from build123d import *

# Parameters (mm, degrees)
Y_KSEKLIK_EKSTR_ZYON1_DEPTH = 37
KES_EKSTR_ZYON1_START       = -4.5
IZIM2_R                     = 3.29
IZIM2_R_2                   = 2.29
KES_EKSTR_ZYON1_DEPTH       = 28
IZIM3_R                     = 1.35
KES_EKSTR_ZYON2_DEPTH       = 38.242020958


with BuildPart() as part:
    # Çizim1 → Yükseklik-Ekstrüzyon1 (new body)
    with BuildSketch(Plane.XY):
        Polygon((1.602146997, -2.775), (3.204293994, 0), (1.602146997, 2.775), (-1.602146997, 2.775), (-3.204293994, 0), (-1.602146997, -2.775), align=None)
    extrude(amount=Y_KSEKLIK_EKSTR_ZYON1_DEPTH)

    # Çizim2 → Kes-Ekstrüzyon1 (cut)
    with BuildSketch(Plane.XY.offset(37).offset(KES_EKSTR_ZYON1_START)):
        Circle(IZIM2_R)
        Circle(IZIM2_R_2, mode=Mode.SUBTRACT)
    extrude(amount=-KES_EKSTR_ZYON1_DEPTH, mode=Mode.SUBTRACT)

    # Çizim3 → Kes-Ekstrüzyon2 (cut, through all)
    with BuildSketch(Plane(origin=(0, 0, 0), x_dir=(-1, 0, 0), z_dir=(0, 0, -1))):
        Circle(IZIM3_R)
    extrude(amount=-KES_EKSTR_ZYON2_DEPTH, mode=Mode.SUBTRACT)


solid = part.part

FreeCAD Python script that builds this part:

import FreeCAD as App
import Part
import Sketcher

V = App.Vector
Q = App.Units.Quantity

doc = App.newDocument("Part")
body = doc.addObject("PartDesign::Body", "Body")

# Sketch on XY plane
sketch1 = body.newObject("Sketcher::SketchObject", "Sketch")
sketch1.AttachmentSupport = (doc.getObject("XY_Plane"), [""])
sketch1.MapMode = "FlatFace"
sketch1.addGeometry([
    Part.LineSegment(V(1.6, -2.8, 0), V(3.2, 0, 0)),  # 0
    Part.LineSegment(V(3.2, 0, 0), V(1.6, 2.8, 0)),  # 1
    Part.LineSegment(V(1.6, 2.8, 0), V(-1.6, 2.8, 0)),  # 2
    Part.LineSegment(V(-1.6, 2.8, 0), V(-3.2, 0, 0)),  # 3
    Part.LineSegment(V(-3.2, 0, 0), V(-1.6, -2.8, 0)),  # 4
    Part.LineSegment(V(-1.6, -2.8, 0), V(1.6, -2.8, 0)),  # 5
], False)
sketch1.addConstraint([
    Sketcher.Constraint("Coincident", 0, 2, 1, 1),
    Sketcher.Constraint("Coincident", 1, 2, 2, 1),
    Sketcher.Constraint("Coincident", 2, 2, 3, 1),
    Sketcher.Constraint("Coincident", 3, 2, 4, 1),
    Sketcher.Constraint("Coincident", 4, 2, 5, 1),
    Sketcher.Constraint("Coincident", 5, 2, 0, 1),
    Sketcher.Constraint("Horizontal", 2),
    Sketcher.Constraint("Horizontal", 5),
    Sketcher.Constraint("Symmetric", 0, 2, 3, 2, -1, 1),
    Sketcher.Constraint("Symmetric", 1, 2, 4, 2, -1, 1),
    Sketcher.Constraint("PointOnObject", 0, 2, -1),
    Sketcher.Constraint("Parallel", 0, 3),
    Sketcher.Constraint("Vertical", 2, 2, 4, 2),
    Sketcher.Constraint("Angle", 0, Q("60 deg")),
    Sketcher.Constraint("DistanceY", 4, 2, 2, 2, 5.55),
    Sketcher.Constraint("DistanceX", 2, 2, 2, 1, 3.204294),
])
pad1 = body.newObject("PartDesign::Pad", "Pad")
pad1.Profile = sketch1
pad1.Length = 37

# Sketch on XY plane
sketch2 = body.newObject("Sketcher::SketchObject", "Sketch001")
sketch2.AttachmentSupport = (doc.getObject("XY_Plane"), [""])
sketch2.MapMode = "FlatFace"
sketch2.AttachmentOffset = App.Placement(V(0, 0, 32.5), App.Rotation())
sketch2.addGeometry([
    Part.Circle(V(0, 0, 0), V(0, 0, 1), 3.3),
    Part.Circle(V(0, 0, 0), V(0, 0, 1), 2.3),
], False)
sketch2.addConstraint([
    Sketcher.Constraint("Coincident", 0, 3, -1, 1),
    Sketcher.Constraint("Coincident", 1, 3, -1, 1),
    Sketcher.Constraint("Diameter", 0, 6.58),
    Sketcher.Constraint("Diameter", 1, 4.58),
])
pocket1 = body.newObject("PartDesign::Pocket", "Pocket")
pocket1.Profile = sketch2
pocket1.Length = 28

# Sketch on XY plane
sketch3 = body.newObject("Sketcher::SketchObject", "Sketch002")
sketch3.AttachmentSupport = (doc.getObject("XY_Plane"), [""])
sketch3.MapMode = "FlatFace"
sketch3.addGeometry(Part.Circle(V(0, 0, 0), V(0, 0, 1), 1.4), False)
sketch3.addConstraint([
    Sketcher.Constraint("Coincident", 0, 3, -1, 1),
    Sketcher.Constraint("Diameter", 0, 2.7),
])
pocket2 = body.newObject("PartDesign::Pocket", "Pocket001")
pocket2.Profile = sketch3
pocket2.Type = "ThroughAll"
pocket2.Reversed = True

doc.recompute()
